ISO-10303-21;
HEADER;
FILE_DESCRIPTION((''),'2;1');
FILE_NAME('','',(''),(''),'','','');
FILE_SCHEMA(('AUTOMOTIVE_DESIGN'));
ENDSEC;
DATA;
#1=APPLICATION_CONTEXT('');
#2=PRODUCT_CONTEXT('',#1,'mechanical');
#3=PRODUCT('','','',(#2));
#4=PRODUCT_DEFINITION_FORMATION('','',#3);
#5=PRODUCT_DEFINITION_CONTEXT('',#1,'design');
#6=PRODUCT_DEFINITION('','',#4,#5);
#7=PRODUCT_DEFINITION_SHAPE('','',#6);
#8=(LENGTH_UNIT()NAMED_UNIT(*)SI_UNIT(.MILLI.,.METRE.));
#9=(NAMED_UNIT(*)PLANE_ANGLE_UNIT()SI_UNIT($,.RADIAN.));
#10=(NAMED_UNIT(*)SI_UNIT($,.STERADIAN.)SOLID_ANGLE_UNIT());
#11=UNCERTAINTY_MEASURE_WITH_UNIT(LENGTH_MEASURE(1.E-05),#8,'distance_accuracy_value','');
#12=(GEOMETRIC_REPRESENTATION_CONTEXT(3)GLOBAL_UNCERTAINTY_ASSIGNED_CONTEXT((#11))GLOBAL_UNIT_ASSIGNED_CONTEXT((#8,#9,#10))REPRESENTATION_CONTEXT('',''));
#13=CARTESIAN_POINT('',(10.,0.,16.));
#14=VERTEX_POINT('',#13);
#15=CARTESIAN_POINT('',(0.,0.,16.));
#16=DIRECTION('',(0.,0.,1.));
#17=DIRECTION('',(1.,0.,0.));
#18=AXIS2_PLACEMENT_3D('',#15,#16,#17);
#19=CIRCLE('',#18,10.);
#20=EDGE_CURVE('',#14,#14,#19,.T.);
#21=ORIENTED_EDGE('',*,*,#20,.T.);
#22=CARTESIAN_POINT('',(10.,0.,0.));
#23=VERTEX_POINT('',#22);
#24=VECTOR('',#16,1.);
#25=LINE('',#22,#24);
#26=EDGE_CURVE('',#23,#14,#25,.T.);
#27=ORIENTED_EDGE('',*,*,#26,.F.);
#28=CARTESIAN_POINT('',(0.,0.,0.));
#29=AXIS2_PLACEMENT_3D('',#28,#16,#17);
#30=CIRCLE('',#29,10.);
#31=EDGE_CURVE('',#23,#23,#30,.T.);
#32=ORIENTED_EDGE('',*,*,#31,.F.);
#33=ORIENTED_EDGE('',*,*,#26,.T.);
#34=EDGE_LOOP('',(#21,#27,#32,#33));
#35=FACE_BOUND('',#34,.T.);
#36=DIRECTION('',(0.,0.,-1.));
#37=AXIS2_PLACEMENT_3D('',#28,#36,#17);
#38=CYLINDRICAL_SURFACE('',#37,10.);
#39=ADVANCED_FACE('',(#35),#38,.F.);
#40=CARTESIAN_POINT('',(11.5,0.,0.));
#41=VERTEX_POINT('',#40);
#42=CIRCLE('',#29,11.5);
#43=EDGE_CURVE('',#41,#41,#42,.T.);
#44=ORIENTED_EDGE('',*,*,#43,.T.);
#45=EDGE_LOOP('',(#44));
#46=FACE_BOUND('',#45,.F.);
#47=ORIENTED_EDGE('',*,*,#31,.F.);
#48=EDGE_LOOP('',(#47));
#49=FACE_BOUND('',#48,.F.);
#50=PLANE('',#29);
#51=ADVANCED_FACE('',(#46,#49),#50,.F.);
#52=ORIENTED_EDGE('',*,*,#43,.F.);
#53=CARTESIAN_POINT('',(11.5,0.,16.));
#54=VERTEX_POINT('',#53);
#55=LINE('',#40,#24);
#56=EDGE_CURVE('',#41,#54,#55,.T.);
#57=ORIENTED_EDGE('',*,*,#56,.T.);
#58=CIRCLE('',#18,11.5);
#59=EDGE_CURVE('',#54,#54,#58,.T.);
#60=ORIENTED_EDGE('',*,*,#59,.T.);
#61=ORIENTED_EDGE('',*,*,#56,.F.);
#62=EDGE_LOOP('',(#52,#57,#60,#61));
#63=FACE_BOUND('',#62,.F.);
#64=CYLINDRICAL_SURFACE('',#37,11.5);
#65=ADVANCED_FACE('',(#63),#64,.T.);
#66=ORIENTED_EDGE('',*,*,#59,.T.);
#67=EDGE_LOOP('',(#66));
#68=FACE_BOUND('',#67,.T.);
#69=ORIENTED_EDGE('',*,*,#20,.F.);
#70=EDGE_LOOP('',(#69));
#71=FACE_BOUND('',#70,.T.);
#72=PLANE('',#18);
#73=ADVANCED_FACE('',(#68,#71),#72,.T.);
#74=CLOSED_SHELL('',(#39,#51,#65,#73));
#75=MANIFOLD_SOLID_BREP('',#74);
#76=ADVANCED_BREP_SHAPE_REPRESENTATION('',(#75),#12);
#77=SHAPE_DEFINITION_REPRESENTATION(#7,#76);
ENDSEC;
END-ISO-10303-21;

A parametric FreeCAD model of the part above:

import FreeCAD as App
import Part
import Sketcher
Q = App.Units.Quantity

doc = App.newDocument("Part")
body = doc.addObject("PartDesign::Body", "Body")

sketch1 = doc.addObject("Sketcher::SketchObject", "Sketch")
body.addObject(sketch1)
sketch1.AttachmentSupport = (doc.XY_Plane, [""])
sketch1.MapMode = "FlatFace"
sketch1.addGeometry([
    Part.Circle(App.Vector(0, 0, 0), App.Vector(0, 0, 1), 12),
    Part.Circle(App.Vector(0, 0, 0), App.Vector(0, 0, 1), 10),
], False)
sketch1.addConstraint([
    Sketcher.Constraint("Coincident", 0, 3, -1, 1),
    Sketcher.Constraint("Coincident", 1, 3, -1, 1),
    Sketcher.Constraint("Diameter", 0, Q("23 mm")),
    Sketcher.Constraint("Diameter", 1, Q("20 mm")),
])
pad1 = doc.addObject("PartDesign::Pad", "Pad")
body.addObject(pad1)
pad1.Profile = sketch1
pad1.Length = 16

doc.recompute()
